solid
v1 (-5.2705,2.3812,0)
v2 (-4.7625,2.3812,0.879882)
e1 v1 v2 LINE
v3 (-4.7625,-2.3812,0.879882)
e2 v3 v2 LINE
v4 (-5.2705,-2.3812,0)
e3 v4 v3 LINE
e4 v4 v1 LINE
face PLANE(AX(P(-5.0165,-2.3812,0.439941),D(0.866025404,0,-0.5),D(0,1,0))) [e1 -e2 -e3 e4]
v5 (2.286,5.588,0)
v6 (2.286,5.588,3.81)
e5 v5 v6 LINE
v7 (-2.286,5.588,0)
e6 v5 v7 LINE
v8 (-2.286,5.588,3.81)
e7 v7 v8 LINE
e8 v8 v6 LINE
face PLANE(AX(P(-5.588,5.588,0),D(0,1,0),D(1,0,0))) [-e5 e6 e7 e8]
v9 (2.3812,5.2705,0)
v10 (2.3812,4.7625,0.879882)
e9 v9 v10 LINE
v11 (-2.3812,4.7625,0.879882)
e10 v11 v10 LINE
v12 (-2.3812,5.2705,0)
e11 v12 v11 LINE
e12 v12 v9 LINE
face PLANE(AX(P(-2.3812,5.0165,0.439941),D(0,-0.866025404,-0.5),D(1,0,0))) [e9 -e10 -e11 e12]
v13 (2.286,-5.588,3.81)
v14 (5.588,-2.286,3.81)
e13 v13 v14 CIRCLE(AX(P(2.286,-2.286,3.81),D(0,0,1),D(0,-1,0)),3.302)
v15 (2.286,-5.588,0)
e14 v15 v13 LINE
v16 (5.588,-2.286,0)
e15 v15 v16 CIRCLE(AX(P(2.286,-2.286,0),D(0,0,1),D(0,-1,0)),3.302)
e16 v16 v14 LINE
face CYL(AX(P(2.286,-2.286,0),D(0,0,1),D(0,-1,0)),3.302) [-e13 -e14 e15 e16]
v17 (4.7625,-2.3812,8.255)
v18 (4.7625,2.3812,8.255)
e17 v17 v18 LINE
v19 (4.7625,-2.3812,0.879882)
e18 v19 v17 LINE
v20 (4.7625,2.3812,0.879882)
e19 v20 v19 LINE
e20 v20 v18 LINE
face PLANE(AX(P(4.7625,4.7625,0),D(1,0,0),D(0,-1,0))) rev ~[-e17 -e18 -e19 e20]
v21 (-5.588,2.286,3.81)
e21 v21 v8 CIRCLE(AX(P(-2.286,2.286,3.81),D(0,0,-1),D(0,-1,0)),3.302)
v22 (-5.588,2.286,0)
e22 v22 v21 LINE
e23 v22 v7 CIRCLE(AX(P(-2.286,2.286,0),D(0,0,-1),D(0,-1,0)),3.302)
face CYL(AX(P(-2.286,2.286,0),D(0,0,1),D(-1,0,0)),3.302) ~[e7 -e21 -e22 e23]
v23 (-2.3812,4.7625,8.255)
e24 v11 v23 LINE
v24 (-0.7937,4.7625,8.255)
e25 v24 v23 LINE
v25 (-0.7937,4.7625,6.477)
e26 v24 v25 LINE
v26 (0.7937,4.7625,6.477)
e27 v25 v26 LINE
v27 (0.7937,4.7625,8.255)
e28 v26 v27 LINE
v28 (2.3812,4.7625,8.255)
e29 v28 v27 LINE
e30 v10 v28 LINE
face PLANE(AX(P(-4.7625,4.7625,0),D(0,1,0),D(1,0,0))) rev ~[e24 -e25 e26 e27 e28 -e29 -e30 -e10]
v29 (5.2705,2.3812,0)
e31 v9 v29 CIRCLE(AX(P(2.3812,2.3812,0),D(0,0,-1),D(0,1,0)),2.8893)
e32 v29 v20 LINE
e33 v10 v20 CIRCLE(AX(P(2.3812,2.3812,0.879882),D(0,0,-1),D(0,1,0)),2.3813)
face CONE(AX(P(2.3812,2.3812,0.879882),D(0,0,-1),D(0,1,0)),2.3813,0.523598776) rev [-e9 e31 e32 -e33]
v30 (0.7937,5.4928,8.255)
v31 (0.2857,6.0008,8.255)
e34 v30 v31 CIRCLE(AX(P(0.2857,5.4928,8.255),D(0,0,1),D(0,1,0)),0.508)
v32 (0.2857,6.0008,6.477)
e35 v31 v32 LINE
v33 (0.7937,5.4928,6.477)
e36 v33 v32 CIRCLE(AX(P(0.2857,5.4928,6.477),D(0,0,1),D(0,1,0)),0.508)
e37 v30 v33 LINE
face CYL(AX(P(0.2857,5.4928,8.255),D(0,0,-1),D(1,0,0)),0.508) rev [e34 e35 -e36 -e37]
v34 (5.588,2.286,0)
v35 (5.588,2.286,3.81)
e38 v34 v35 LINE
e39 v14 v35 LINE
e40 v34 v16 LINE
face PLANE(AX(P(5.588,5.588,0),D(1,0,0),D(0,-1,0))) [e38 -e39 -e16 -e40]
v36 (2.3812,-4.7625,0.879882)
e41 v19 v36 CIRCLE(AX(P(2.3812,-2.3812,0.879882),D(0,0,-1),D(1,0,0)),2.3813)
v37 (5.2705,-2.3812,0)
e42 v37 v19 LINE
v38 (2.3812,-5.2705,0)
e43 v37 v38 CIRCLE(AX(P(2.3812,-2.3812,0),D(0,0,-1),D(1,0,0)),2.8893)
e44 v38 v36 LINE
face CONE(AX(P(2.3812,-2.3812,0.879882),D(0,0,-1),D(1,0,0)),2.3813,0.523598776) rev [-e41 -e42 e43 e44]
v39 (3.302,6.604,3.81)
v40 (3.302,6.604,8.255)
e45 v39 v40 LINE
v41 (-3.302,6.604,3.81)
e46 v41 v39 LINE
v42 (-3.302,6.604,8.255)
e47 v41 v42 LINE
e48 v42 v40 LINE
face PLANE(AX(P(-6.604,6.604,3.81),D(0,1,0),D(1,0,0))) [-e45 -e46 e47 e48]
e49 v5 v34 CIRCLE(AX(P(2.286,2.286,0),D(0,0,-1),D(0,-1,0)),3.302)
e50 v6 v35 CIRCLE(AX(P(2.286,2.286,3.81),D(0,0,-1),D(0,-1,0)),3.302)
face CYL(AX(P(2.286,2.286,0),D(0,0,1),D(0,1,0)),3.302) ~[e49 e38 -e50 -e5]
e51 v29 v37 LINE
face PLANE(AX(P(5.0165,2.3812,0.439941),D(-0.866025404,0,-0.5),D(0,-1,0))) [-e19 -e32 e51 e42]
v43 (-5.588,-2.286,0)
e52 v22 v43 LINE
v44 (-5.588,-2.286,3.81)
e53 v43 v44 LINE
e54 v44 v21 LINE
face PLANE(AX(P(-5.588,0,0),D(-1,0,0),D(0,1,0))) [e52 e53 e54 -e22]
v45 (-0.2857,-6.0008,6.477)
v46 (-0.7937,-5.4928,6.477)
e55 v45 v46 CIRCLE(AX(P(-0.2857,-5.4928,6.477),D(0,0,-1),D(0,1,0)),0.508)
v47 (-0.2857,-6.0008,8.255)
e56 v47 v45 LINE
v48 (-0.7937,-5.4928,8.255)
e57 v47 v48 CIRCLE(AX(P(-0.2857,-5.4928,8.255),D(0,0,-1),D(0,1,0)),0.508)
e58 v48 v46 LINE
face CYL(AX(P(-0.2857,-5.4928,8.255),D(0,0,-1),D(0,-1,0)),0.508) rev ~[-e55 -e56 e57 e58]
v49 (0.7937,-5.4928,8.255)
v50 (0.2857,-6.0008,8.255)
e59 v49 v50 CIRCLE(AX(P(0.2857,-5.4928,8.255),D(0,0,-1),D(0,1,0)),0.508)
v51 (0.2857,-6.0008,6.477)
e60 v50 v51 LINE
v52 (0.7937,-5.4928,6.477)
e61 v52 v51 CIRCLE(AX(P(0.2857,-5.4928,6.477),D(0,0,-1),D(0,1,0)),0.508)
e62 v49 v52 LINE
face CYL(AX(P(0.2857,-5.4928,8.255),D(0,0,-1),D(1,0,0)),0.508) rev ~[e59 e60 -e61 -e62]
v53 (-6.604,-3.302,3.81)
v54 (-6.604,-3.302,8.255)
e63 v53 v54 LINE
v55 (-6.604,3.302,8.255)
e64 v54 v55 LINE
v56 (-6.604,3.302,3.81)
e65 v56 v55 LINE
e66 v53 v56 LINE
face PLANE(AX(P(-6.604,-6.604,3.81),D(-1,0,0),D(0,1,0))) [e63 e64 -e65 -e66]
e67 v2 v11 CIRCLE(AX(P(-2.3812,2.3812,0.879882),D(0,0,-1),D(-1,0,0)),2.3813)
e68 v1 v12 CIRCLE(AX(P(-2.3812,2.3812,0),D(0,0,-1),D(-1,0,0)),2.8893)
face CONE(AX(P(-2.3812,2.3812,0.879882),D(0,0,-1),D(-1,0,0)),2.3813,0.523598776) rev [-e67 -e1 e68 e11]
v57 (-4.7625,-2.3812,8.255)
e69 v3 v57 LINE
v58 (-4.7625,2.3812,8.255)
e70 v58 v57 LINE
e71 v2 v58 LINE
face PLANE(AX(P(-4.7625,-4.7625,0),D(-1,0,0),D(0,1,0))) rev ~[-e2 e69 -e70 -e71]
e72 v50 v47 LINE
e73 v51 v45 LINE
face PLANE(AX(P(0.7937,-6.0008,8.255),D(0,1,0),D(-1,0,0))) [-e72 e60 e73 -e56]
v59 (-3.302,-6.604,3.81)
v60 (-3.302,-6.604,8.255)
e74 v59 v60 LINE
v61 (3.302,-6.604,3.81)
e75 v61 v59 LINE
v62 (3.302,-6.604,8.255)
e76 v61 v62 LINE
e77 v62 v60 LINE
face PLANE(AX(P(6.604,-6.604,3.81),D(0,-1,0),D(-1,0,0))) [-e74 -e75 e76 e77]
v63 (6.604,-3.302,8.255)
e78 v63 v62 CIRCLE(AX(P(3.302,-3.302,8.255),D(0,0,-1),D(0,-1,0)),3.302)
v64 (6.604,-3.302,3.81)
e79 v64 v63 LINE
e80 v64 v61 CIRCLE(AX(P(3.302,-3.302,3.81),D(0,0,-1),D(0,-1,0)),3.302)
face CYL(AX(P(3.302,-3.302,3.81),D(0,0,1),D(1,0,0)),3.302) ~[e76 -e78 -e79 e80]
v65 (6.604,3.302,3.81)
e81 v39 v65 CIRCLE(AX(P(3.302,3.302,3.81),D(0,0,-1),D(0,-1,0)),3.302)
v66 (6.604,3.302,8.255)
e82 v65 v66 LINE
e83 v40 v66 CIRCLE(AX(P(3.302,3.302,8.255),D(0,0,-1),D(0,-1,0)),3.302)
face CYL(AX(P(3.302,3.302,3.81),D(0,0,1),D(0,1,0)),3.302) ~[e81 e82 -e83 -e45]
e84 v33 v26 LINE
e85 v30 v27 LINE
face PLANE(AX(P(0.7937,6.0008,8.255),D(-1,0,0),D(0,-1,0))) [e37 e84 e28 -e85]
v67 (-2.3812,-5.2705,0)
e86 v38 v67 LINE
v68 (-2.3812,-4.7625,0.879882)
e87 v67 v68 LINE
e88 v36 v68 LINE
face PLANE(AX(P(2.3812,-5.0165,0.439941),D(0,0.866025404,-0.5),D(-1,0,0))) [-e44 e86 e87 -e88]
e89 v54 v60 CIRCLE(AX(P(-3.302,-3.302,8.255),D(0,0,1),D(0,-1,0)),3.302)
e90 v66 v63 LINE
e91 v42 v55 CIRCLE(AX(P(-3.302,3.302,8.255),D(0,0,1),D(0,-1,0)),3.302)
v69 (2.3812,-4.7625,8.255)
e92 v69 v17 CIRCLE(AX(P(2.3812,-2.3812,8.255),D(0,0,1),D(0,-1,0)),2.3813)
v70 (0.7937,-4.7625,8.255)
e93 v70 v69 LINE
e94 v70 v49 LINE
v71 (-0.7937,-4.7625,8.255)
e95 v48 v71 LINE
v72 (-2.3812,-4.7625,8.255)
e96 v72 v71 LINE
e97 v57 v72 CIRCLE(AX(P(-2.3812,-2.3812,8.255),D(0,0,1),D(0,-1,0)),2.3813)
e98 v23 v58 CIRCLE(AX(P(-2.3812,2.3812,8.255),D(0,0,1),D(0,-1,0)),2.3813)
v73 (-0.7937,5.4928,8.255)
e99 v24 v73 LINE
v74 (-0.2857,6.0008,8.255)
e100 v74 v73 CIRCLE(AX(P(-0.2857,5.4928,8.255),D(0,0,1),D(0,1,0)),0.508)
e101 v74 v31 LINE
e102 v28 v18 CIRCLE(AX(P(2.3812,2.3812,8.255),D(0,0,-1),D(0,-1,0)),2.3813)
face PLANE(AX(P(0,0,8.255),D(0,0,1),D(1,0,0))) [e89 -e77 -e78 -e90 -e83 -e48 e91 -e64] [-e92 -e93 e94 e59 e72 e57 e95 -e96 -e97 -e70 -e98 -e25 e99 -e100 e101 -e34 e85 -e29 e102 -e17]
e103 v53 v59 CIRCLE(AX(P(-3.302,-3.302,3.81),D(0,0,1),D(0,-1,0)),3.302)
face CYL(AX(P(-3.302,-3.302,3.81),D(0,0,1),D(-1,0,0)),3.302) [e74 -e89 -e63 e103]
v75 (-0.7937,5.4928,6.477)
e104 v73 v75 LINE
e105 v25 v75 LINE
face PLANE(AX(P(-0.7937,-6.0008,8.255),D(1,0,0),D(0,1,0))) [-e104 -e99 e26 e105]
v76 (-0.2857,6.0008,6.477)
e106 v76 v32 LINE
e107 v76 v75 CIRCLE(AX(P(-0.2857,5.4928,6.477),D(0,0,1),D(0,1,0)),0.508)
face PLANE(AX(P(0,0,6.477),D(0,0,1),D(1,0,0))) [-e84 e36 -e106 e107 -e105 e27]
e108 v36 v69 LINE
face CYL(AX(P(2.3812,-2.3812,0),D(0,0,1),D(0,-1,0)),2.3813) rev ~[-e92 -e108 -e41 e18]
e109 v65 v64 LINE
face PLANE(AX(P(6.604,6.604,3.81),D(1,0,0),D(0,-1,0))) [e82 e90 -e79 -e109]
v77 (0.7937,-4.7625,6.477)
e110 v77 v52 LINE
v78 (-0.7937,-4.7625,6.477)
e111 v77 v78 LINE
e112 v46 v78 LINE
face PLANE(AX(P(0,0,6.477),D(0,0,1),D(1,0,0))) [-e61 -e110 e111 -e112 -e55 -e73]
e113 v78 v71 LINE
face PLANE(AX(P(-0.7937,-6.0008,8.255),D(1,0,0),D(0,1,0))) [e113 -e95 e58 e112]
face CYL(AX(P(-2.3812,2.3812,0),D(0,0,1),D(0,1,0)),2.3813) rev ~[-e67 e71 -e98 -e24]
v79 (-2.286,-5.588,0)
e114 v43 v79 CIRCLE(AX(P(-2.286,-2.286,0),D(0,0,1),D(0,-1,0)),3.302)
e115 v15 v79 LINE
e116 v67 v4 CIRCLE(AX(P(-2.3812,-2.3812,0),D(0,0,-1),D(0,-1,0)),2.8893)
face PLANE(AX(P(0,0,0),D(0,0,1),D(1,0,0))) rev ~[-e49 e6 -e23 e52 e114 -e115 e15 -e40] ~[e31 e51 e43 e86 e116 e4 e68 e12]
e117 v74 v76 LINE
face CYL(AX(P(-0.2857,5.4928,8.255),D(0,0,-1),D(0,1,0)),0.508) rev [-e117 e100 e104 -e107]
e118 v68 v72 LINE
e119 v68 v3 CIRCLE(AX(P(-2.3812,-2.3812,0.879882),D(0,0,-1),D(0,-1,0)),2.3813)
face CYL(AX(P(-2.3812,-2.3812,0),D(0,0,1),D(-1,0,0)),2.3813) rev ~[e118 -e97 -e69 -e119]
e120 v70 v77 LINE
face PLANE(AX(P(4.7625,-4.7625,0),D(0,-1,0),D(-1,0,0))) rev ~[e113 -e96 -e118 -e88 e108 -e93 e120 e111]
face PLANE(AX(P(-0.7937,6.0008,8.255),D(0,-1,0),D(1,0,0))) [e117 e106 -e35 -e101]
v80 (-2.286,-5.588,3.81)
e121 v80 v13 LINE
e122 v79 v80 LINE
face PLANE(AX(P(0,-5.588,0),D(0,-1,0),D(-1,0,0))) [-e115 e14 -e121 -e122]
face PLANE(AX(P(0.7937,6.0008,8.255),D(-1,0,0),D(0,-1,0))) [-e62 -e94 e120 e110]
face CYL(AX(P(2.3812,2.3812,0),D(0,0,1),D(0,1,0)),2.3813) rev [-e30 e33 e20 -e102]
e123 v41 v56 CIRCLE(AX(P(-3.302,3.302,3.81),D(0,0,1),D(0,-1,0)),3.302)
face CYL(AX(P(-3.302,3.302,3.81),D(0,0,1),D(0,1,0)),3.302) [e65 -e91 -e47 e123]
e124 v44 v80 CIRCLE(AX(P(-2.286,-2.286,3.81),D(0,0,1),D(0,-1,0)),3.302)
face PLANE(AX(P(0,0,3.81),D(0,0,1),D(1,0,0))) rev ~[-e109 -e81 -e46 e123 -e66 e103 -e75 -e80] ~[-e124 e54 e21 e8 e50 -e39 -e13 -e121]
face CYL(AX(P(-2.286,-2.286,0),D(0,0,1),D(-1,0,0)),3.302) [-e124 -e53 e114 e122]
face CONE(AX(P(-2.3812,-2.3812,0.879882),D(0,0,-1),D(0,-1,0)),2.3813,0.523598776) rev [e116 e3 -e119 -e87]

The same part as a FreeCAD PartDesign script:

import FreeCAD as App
import Part
import Sketcher
from FreeCAD import Vector
Q = App.Units.Quantity


def edges_at(feature, points):
    """Names of the edges that pass closest to the given points."""
    edges = feature.Shape.Edges
    near = lambda p: min(range(len(edges)), key=lambda i: edges[i].distToShape(Part.Vertex(*p))[0])
    return sorted({f"Edge{near(p) + 1}" for p in points})


def add_polygon(sketch, points):
    """Adds a closed chain of lines whose ends are joined by coincident constraints."""
    first, n = sketch.GeometryCount, len(points)
    for a, b in zip(points, points[1:] + points[:1]):
        sketch.addGeometry(Part.LineSegment(App.Vector(*a, 0), App.Vector(*b, 0)), False)
    for i in range(n):
        sketch.addConstraint(Sketcher.Constraint("Coincident", first + i, 2, first + (i + 1) % n, 1))

doc = App.newDocument("Part")
body = doc.addObject("PartDesign::Body", "Body")

# Sketch on XY plane
sketch1 = body.newObject("Sketcher::SketchObject", "Sketch")
sketch1.AttachmentSupport = (doc.getObject("XY_Plane"), [""])
sketch1.MapMode = "FlatFace"
add_polygon(sketch1, [(-5.588, 5.588), (-5.588, -5.588), (5.588, -5.588), (5.588, 5.588)])  # lines 0-3
sketch1.addConstraint([
    Sketcher.Constraint("Vertical", 0),
    Sketcher.Constraint("Horizontal", 1),
    Sketcher.Constraint("Vertical", 2),
    Sketcher.Constraint("Horizontal", 3),
    Sketcher.Constraint("Symmetric", 0, 2, 2, 2, -1, 1),
    Sketcher.Constraint("Equal", 3, 0),
    Sketcher.Constraint("DistanceX", 1, 1, 1, 2, Q("0.44 in")),
])
pad1 = body.newObject("PartDesign::Pad", "Pad")
pad1.Profile = sketch1
pad1.Length = Q("0.15 in")

# Sketch on XY plane
sketch2 = body.newObject("Sketcher::SketchObject", "Sketch001")
sketch2.AttachmentSupport = (doc.getObject("XY_Plane"), [""])
sketch2.MapMode = "FlatFace"
sketch2.AttachmentOffset = App.Placement(Vector(0, 0, 0.15 * 25.4), App.Rotation())
add_polygon(sketch2, [(6.604, 6.604), (-6.604, 6.604), (-6.604, -6.604), (6.604, -6.604)])  # lines 0-3
sketch2.addConstraint([
    Sketcher.Constraint("Horizontal", 0),
    Sketcher.Constraint("Vertical", 1),
    Sketcher.Constraint("Horizontal", 2),
    Sketcher.Constraint("Vertical", 3),
    Sketcher.Constraint("Symmetric", 0, 2, 2, 2, -1, 1),
    Sketcher.Constraint("Equal", 2, 1),
    Sketcher.Constraint("DistanceX", 0, 2, 0, 1, Q("0.52 in")),
])
pad2 = body.newObject("PartDesign::Pad", "Pad001")
pad2.Profile = sketch2
pad2.Length = Q("0.175 in")

# Sketch on XY plane
sketch3 = body.newObject("Sketcher::SketchObject", "Sketch002")
sketch3.AttachmentSupport = (doc.getObject("XY_Plane"), [""])
sketch3.MapMode = "FlatFace"
add_polygon(sketch3, [(4.7625, 4.7625), (-4.7625, 4.7625), (-4.7625, -4.7625), (4.7625, -4.7625)])  # lines 0-3
sketch3.addConstraint([
    Sketcher.Constraint("Horizontal", 0),
    Sketcher.Constraint("Vertical", 1),
    Sketcher.Constraint("Horizontal", 2),
    Sketcher.Constraint("Vertical", 3),
    Sketcher.Constraint("Symmetric", 0, 2, 2, 2, -1, 1),
    Sketcher.Constraint("Equal", 2, 1),
    Sketcher.Constraint("DistanceX", 0, 2, 0, 1, Q("0.375 in")),
])
pocket1 = body.newObject("PartDesign::Pocket", "Pocket")
pocket1.Profile = sketch3
pocket1.Type = "ThroughAll"
pocket1.Reversed = True

# Sketch on XY plane
sketch4 = body.newObject("Sketcher::SketchObject", "Sketch003")
sketch4.AttachmentSupport = (doc.getObject("XY_Plane"), [""])
sketch4.MapMode = "FlatFace"
sketch4.AttachmentOffset = App.Placement(Vector(0, 0, 0.325 * 25.4), App.Rotation())
add_polygon(sketch4, [(0.7937, 6.0008), (-0.7937, 6.0008), (-0.7937, -6.0008), (0.7937, -6.0008)])  # lines 0-3
sketch4.addConstraint([
    Sketcher.Constraint("Horizontal", 0),
    Sketcher.Constraint("Vertical", 1),
    Sketcher.Constraint("Horizontal", 2),
    Sketcher.Constraint("Vertical", 3),
    Sketcher.Constraint("Symmetric", 0, 2, 2, 2, -1, 1),
    Sketcher.Constraint("DistanceX", 0, 2, 0, 1, Q("0.0625 in")),
    Sketcher.Constraint("DistanceY", 1, 2, 1, 1, Q("0.4725 in")),
])
pocket2 = body.newObject("PartDesign::Pocket", "Pocket001")
pocket2.Profile = sketch4
pocket2.Length = Q("0.07 in")
doc.recompute()

fillet = body.newObject("PartDesign::Fillet", "Fillet")
fillet.Base = (pocket2, edges_at(pocket2, [
    (-4.763, 4.763, 4.128),
    (4.763, 4.763, 4.128),
    (4.763, -4.763, 4.128),
    (-4.763, -4.763, 4.128),
]))
fillet.Radius = Q("0.093752 in")
doc.recompute()

fillet2 = body.newObject("PartDesign::Fillet", "Fillet001")
fillet2.Base = (fillet, edges_at(fillet, [
    (-5.588, -5.588, 1.905),
    (-5.588, 5.588, 1.905),
    (5.588, -5.588, 1.905),
    (5.588, 5.588, 1.905),
    (-6.604, 6.604, 6.032),
    (-6.604, -6.604, 6.032),
    (6.604, -6.604, 6.032),
    (6.604, 6.604, 6.032),
]))
fillet2.Radius = Q("0.13 in")
doc.recompute()

fillet3 = body.newObject("PartDesign::Fillet", "Fillet002")
fillet3.Base = (fillet2, edges_at(fillet2, [
    (0.794, 6.001, 7.366),
    (-0.794, 6.001, 7.366),
    (-0.794, -6.001, 7.366),
    (0.794, -6.001, 7.366),
]))
fillet3.Radius = Q("0.02 in")
doc.recompute()

chamfer = body.newObject("PartDesign::Chamfer", "Chamfer")
chamfer.Base = (fillet3, edges_at(fillet3, [
    (4.065, 4.065, 0),
    (4.763, 0, 0),
    (4.065, -4.065, 0),
    (0, -4.763, 0),
    (-4.065, -4.065, 0),
    (-4.763, 0, 0),
    (-4.065, 4.065, 0),
    (0, 4.763, 0),
]))
chamfer.ChamferType = "Distance and Angle"
chamfer.Size = Q("0.02 in")
chamfer.Angle = 60
chamfer.FlipDirection = True

doc.recompute()
